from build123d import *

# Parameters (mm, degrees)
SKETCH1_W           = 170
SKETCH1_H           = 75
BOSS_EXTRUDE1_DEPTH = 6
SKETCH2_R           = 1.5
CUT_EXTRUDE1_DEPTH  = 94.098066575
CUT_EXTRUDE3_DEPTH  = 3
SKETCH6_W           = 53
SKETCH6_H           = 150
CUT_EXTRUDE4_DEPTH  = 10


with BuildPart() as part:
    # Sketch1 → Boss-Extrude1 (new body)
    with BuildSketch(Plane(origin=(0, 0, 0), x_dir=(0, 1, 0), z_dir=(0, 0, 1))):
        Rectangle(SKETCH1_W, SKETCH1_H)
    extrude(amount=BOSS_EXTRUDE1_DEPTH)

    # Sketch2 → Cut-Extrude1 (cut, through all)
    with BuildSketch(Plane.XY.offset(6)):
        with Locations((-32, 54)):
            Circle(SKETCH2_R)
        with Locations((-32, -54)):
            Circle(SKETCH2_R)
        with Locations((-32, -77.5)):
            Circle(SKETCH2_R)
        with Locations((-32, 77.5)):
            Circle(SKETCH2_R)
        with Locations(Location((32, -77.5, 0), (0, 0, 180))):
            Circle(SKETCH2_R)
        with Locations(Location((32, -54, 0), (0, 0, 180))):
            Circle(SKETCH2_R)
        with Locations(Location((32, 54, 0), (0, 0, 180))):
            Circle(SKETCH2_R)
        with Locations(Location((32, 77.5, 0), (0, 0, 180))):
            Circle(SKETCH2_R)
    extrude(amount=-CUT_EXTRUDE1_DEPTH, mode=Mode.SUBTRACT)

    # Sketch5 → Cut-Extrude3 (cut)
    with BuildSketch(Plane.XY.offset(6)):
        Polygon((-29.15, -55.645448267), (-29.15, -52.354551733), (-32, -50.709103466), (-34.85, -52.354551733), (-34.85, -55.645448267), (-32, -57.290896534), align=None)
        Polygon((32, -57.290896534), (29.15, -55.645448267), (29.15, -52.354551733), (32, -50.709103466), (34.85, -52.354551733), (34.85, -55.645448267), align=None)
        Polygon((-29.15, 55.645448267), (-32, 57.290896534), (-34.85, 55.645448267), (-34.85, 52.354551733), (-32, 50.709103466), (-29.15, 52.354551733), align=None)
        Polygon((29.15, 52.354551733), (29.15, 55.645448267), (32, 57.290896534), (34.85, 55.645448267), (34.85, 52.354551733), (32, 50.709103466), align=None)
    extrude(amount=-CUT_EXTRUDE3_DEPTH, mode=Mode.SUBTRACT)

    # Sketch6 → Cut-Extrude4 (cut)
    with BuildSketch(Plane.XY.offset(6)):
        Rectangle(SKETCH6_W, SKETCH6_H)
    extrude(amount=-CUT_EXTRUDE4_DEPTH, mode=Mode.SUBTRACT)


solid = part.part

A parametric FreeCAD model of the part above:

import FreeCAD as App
import Part
import Sketcher

V = App.Vector
Q = App.Units.Quantity

doc = App.newDocument("Part")
body = doc.addObject("PartDesign::Body", "Body")

sketch1 = body.newObject("Sketcher::SketchObject", "Sketch")
sketch1.AttachmentSupport = (doc.getObject("XY_Plane"), [""])
sketch1.MapMode = "FlatFace"
sketch1.addGeometry([
    Part.LineSegment(V(-37.5, -85, 0), V(37.5, -85, 0)),
    Part.LineSegment(V(37.5, -85, 0), V(37.5, 85, 0)),
    Part.LineSegment(V(37.5, 85, 0), V(-37.5, 85, 0)),
    Part.LineSegment(V(-37.5, 85, 0), V(-37.5, -85, 0)),
], False)
sketch1.addConstraint([
    Sketcher.Constraint("Coincident", 0, 2, 1, 1),
    Sketcher.Constraint("Coincident", 1, 2, 2, 1),
    Sketcher.Constraint("Coincident", 2, 2, 3, 1),
    Sketcher.Constraint("Coincident", 3, 2, 0, 1),
    Sketcher.Constraint("Horizontal", 0),
    Sketcher.Constraint("Vertical", 1),
    Sketcher.Constraint("Horizontal", 2),
    Sketcher.Constraint("Vertical", 3),
    Sketcher.Constraint("Symmetric", 0, 2, 2, 2, -1, 1),
    Sketcher.Constraint("DistanceX", 0, 1, 0, 2, 75.0),
    Sketcher.Constraint("DistanceY", 1, 1, 1, 2, 170.0),
])
pad1 = body.newObject("PartDesign::Pad", "Pad")
pad1.Profile = sketch1
pad1.Length = 6

sketch2 = body.newObject("Sketcher::SketchObject", "Sketch001")
sketch2.AttachmentSupport = (doc.getObject("XY_Plane"), [""])
sketch2.MapMode = "FlatFace"
sketch2.AttachmentOffset = App.Placement(V(0, 0, 6), App.Rotation())
sketch2.addGeometry([
    Part.Circle(V(-32, 54, 0), V(0, 0, 1), 1.5),
    Part.Circle(V(-32, -54, 0), V(0, 0, 1), 1.5),
    Part.Circle(V(-32, -77.5, 0), V(0, 0, 1), 1.5),
    Part.Circle(V(-32, 77.5, 0), V(0, 0, 1), 1.5),
    Part.Circle(V(32, -77.5, 0), V(0, 0, 1), 1.5),
    Part.Circle(V(32, -54, 0), V(0, 0, 1), 1.5),
    Part.Circle(V(32, 54, 0), V(0, 0, 1), 1.5),
    Part.Circle(V(32, 77.5, 0), V(0, 0, 1), 1.5),
], False)
sketch2.addConstraint([
    Sketcher.Constraint("Equal", 0, 1),
    Sketcher.Constraint("Equal", 1, 2),
    Sketcher.Constraint("Equal", 2, 3),
    Sketcher.Constraint("Equal", 3, 4),
    Sketcher.Constraint("Equal", 4, 5),
    Sketcher.Constraint("Equal", 5, 6),
    Sketcher.Constraint("Equal", 6, 7),
    Sketcher.Constraint("Symmetric", 3, 3, 4, 3, -1, 1),
    Sketcher.Constraint("Symmetric", 0, 3, 5, 3, -1, 1),
    Sketcher.Constraint("Symmetric", 1, 3, 6, 3, -1, 1),
    Sketcher.Constraint("Symmetric", 2, 3, 7, 3, -1, 1),
    Sketcher.Constraint("Symmetric", 2, 3, 4, 3, -2),
    Sketcher.Constraint("Symmetric", 1, 3, 5, 3, -2),
    Sketcher.Constraint("Vertical", 1, 3, 2, 3),
    Sketcher.Constraint("Diameter", 0, 3.0),
    Sketcher.Constraint("DistanceX", 0, 3, -1, 1, 32.0),
    Sketcher.Constraint("DistanceY", -1, 1, 0, 3, 54.0),
    Sketcher.Constraint("DistanceY", 2, 3, 3, 3, 155.0),
])
pocket1 = body.newObject("PartDesign::Pocket", "Pocket")
pocket1.Profile = sketch2
pocket1.Type = "ThroughAll"

sketch3 = body.newObject("Sketcher::SketchObject", "Sketch002")
sketch3.AttachmentSupport = (doc.getObject("XY_Plane"), [""])
sketch3.MapMode = "FlatFace"
sketch3.AttachmentOffset = App.Placement(V(0, 0, 6), App.Rotation())
sketch3.addGeometry([
    Part.LineSegment(V(-29.15, -55.645448, 0), V(-29.15, -52.354552, 0)),
    Part.LineSegment(V(-29.15, -52.354552, 0), V(-32, -50.709103, 0)),
    Part.LineSegment(V(-32, -50.709103, 0), V(-34.85, -52.354552, 0)),
    Part.LineSegment(V(-34.85, -52.354552, 0), V(-34.85, -55.645448, 0)),
    Part.LineSegment(V(-34.85, -55.645448, 0), V(-32, -57.290897, 0)),
    Part.LineSegment(V(-32, -57.290897, 0), V(-29.15, -55.645448, 0)),
    Part.LineSegment(V(29.15, -55.645448, 0), V(32, -57.290897, 0)),
    Part.LineSegment(V(32, -57.290897, 0), V(34.85, -55.645448, 0)),
    Part.LineSegment(V(34.85, -55.645448, 0), V(34.85, -52.354552, 0)),
    Part.LineSegment(V(34.85, -52.354552, 0), V(32, -50.709103, 0)),
    Part.LineSegment(V(32, -50.709103, 0), V(29.15, -52.354552, 0)),
    Part.LineSegment(V(29.15, -52.354552, 0), V(29.15, -55.645448, 0)),
    Part.LineSegment(V(-29.15, 55.645448, 0), V(-32, 57.290897, 0)),
    Part.LineSegment(V(-32, 57.290897, 0), V(-34.85, 55.645448, 0)),
    Part.LineSegment(V(-34.85, 55.645448, 0), V(-34.85, 52.354552, 0)),
    Part.LineSegment(V(-34.85, 52.354552, 0), V(-32, 50.709103, 0)),
    Part.LineSegment(V(-32, 50.709103, 0), V(-29.15, 52.354552, 0)),
    Part.LineSegment(V(-29.15, 52.354552, 0), V(-29.15, 55.645448, 0)),
    Part.LineSegment(V(29.15, 55.645448, 0), V(29.15, 52.354552, 0)),
    Part.LineSegment(V(29.15, 52.354552, 0), V(32, 50.709103, 0)),
    Part.LineSegment(V(32, 50.709103, 0), V(34.85, 52.354552, 0)),
    Part.LineSegment(V(34.85, 52.354552, 0), V(34.85, 55.645448, 0)),
    Part.LineSegment(V(34.85, 55.645448, 0), V(32, 57.290897, 0)),
    Part.LineSegment(V(32, 57.290897, 0), V(29.15, 55.645448, 0)),
], False)
sketch3.addConstraint([
    Sketcher.Constraint("Coincident", 0, 2, 1, 1),
    Sketcher.Constraint("Coincident", 1, 2, 2, 1),
    Sketcher.Constraint("Coincident", 2, 2, 3, 1),
    Sketcher.Constraint("Coincident", 3, 2, 4, 1),
    Sketcher.Constraint("Coincident", 4, 2, 5, 1),
    Sketcher.Constraint("Coincident", 5, 2, 0, 1),
    Sketcher.Constraint("Coincident", 6, 2, 7, 1),
    Sketcher.Constraint("Coincident", 7, 2, 8, 1),
    Sketcher.Constraint("Coincident", 8, 2, 9, 1),
    Sketcher.Constraint("Coincident", 9, 2, 10, 1),
    Sketcher.Constraint("Coincident", 10, 2, 11, 1),
    Sketcher.Constraint("Coincident", 11, 2, 6, 1),
    Sketcher.Constraint("Coincident", 12, 2, 13, 1),
    Sketcher.Constraint("Coincident", 13, 2, 14, 1),
    Sketcher.Constraint("Coincident", 14, 2, 15, 1),
    Sketcher.Constraint("Coincident", 15, 2, 16, 1),
    Sketcher.Constraint("Coincident", 16, 2, 17, 1),
    Sketcher.Constraint("Coincident", 17, 2, 12, 1),
    Sketcher.Constraint("Coincident", 18, 2, 19, 1),
    Sketcher.Constraint("Coincident", 19, 2, 20, 1),
    Sketcher.Constraint("Coincident", 20, 2, 21, 1),
    Sketcher.Constraint("Coincident", 21, 2, 22, 1),
    Sketcher.Constraint("Coincident", 22, 2, 23, 1),
    Sketcher.Constraint("Coincident", 23, 2, 18, 1),
    Sketcher.Constraint("Vertical", 0),
    Sketcher.Constraint("Vertical", 3),
    Sketcher.Constraint("Vertical", 8),
    Sketcher.Constraint("Vertical", 11),
    Sketcher.Constraint("Vertical", 14),
    Sketcher.Constraint("Vertical", 17),
    Sketcher.Constraint("Vertical", 18),
    Sketcher.Constraint("Vertical", 21),
    Sketcher.Constraint("Symmetric", 6, 2, 12, 2, -1, 1),
    Sketcher.Constraint("Symmetric", 7, 2, 13, 2, -1, 1),
    Sketcher.Constraint("Symmetric", 9, 2, 15, 2, -1, 1),
    Sketcher.Constraint("Symmetric", 10, 2, 16, 2, -1, 1),
    Sketcher.Constraint("Symmetric", 0, 2, 18, 2, -1, 1),
    Sketcher.Constraint("Symmetric", 1, 2, 19, 2, -1, 1),
    Sketcher.Constraint("Symmetric", 2, 2, 20, 2, -1, 1),
    Sketcher.Constraint("Symmetric", 4, 2, 22, 2, -1, 1),
    Sketcher.Constraint("Symmetric", 4, 2, 6, 2, -2),
    Sketcher.Constraint("Symmetric", 3, 2, 7, 2, -2),
    Sketcher.Constraint("Symmetric", 1, 2, 9, 2, -2),
    Sketcher.Constraint("Symmetric", 0, 2, 10, 2, -2),
    Sketcher.Constraint("Parallel", 1, 4),
    Sketcher.Constraint("Parallel", 2, 5),
    Sketcher.Constraint("Parallel", 4, 6),
    Sketcher.Constraint("Parallel", 5, 7),
    Sketcher.Constraint("Parallel", 6, 9),
    Sketcher.Constraint("Parallel", 9, 12),
    Sketcher.Constraint("Parallel", 12, 15),
    Sketcher.Constraint("Parallel", 19, 22),
    Sketcher.Constraint("Parallel", 20, 23),
    Sketcher.Constraint("Horizontal", 0, 2, 2, 2),
    Sketcher.Constraint("Horizontal", 3, 2, 5, 2),
    Sketcher.Constraint("Angle", 1, Q("150 deg")),
    Sketcher.Constraint("DistanceX", 1, 2, -1, 1, 32.0),
    Sketcher.Constraint("DistanceY", 1, 2, 12, 2, 108.0),
    Sketcher.Constraint("DistanceX", 2, 2, 0, 2, 5.7),
    Sketcher.Constraint("DistanceY", 0, 1, 0, 2, 3.290897),
])
pocket2 = body.newObject("PartDesign::Pocket", "Pocket001")
pocket2.Profile = sketch3
pocket2.Length = 3

sketch4 = body.newObject("Sketcher::SketchObject", "Sketch003")
sketch4.AttachmentSupport = (doc.getObject("XY_Plane"), [""])
sketch4.MapMode = "FlatFace"
sketch4.AttachmentOffset = App.Placement(V(0, 0, 6), App.Rotation())
sketch4.addGeometry([
    Part.LineSegment(V(-26.5, 75, 0), V(-26.5, -75, 0)),
    Part.LineSegment(V(-26.5, -75, 0), V(26.5, -75, 0)),
    Part.LineSegment(V(26.5, -75, 0), V(26.5, 75, 0)),
    Part.LineSegment(V(26.5, 75, 0), V(-26.5, 75, 0)),
], False)
sketch4.addConstraint([
    Sketcher.Constraint("Coincident", 0, 2, 1, 1),
    Sketcher.Constraint("Coincident", 1, 2, 2, 1),
    Sketcher.Constraint("Coincident", 2, 2, 3, 1),
    Sketcher.Constraint("Coincident", 3, 2, 0, 1),
    Sketcher.Constraint("Vertical", 0),
    Sketcher.Constraint("Horizontal", 1),
    Sketcher.Constraint("Vertical", 2),
    Sketcher.Constraint("Horizontal", 3),
    Sketcher.Constraint("Symmetric", 0, 2, 2, 2, -1, 1),
    Sketcher.Constraint("DistanceX", 1, 1, 1, 2, 53.0),
    Sketcher.Constraint("DistanceY", 0, 2, 0, 1, 150.0),
])
pocket3 = body.newObject("PartDesign::Pocket", "Pocket002")
pocket3.Profile = sketch4
pocket3.Length = 10

doc.recompute()
